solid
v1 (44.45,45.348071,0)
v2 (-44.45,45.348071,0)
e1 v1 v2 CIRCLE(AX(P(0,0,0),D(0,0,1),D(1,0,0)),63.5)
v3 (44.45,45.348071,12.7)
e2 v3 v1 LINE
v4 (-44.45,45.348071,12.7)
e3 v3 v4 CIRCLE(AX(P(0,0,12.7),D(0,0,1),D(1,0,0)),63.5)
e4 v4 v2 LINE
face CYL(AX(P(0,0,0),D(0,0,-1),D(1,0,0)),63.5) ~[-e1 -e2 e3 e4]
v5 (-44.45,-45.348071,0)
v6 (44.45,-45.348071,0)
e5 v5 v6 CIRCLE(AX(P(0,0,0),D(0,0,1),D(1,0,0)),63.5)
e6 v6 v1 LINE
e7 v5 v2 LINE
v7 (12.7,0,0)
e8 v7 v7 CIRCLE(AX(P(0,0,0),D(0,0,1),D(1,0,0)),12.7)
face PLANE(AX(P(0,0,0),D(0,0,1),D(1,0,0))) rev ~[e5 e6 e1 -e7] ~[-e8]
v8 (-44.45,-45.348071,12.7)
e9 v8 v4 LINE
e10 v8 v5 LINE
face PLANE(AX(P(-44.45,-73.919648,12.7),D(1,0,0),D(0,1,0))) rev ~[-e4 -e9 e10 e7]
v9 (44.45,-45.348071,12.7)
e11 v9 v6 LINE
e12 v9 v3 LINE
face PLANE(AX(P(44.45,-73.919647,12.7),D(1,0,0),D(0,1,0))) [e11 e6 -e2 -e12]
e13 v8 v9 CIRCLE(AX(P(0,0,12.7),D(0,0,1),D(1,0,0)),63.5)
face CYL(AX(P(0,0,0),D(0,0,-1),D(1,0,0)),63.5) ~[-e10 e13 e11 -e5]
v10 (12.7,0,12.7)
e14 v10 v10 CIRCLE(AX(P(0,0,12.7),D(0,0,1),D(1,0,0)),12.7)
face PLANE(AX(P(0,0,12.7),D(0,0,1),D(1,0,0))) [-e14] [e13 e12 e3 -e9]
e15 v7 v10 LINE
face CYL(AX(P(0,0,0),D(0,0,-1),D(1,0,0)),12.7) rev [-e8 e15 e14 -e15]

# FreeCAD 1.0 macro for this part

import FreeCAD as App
import Part
import Sketcher
from FreeCAD import Vector
Q = App.Units.Quantity

doc = App.newDocument("Part")
body = doc.addObject("PartDesign::Body", "Body")

# Sketch on XY plane
sketch1 = doc.addObject("Sketcher::SketchObject", "Sketch")
body.addObject(sketch1)
sketch1.AttachmentSupport = (doc.XY_Plane, [""])
sketch1.MapMode = "FlatFace"
sketch1.addGeometry(Part.Circle(Vector(0, 0, 0), Vector(0, 0, 1), 64), False)
sketch1.addGeometry(Part.Circle(Vector(0, 0, 0), Vector(0, 0, 1), 13), False)
sketch1.addConstraint(Sketcher.Constraint("Coincident", 0, 3, -1, 1))
sketch1.addConstraint(Sketcher.Constraint("Coincident", 1, 3, -1, 1))
sketch1.addConstraint(Sketcher.Constraint("Diameter", 0, Q("5 in")))
sketch1.addConstraint(Sketcher.Constraint("Diameter", 1, Q("1 in")))
pad1 = doc.addObject("PartDesign::Pad", "Pad")
body.addObject(pad1)
pad1.Profile = sketch1
pad1.Length = Q("0.5 in")

# Sketch on XY plane
sketch2 = doc.addObject("Sketcher::SketchObject", "Sketch001")
body.addObject(sketch2)
sketch2.AttachmentSupport = (doc.XY_Plane, [""])
sketch2.MapMode = "FlatFace"
sketch2.AttachmentOffset = App.Placement(Vector(0, 0, 0.5 * 25.4), App.Rotation())
sketch2.addGeometry(Part.LineSegment(Vector(-98, 67, 0), Vector(-98, -74, 0)), False)
sketch2.addGeometry(Part.LineSegment(Vector(-98, -74, 0), Vector(-44, -74, 0)), False)
sketch2.addGeometry(Part.LineSegment(Vector(-44, -74, 0), Vector(-44, 67, 0)), False)
sketch2.addGeometry(Part.LineSegment(Vector(-44, 67, 0), Vector(-98, 67, 0)), False)
sketch2.addGeometry(Part.LineSegment(Vector(44, 67, 0), Vector(44, -74, 0)), False)
sketch2.addGeometry(Part.LineSegment(Vector(44, -74, 0), Vector(111, -74, 0)), False)
sketch2.addGeometry(Part.LineSegment(Vector(111, -74, 0), Vector(111, 67, 0)), False)
sketch2.addGeometry(Part.LineSegment(Vector(111, 67, 0), Vector(44, 67, 0)), False)
sketch2.addConstraint(Sketcher.Constraint("Coincident", 0, 2, 1, 1))
sketch2.addConstraint(Sketcher.Constraint("Coincident", 1, 2, 2, 1))
sketch2.addConstraint(Sketcher.Constraint("Coincident", 2, 2, 3, 1))
sketch2.addConstraint(Sketcher.Constraint("Coincident", 3, 2, 0, 1))
sketch2.addConstraint(Sketcher.Constraint("Coincident", 4, 2, 5, 1))
sketch2.addConstraint(Sketcher.Constraint("Coincident", 5, 2, 6, 1))
sketch2.addConstraint(Sketcher.Constraint("Coincident", 6, 2, 7, 1))
sketch2.addConstraint(Sketcher.Constraint("Coincident", 7, 2, 4, 1))
sketch2.addConstraint(Sketcher.Constraint("Vertical", 0))
sketch2.addConstraint(Sketcher.Constraint("Horizontal", 1))
sketch2.addConstraint(Sketcher.Constraint("Vertical", 2))
sketch2.addConstraint(Sketcher.Constraint("Horizontal", 3))
sketch2.addConstraint(Sketcher.Constraint("Vertical", 4))
sketch2.addConstraint(Sketcher.Constraint("Horizontal", 5))
sketch2.addConstraint(Sketcher.Constraint("Vertical", 6))
sketch2.addConstraint(Sketcher.Constraint("Horizontal", 7))
sketch2.addConstraint(Sketcher.Constraint("Symmetric", 1, 2, 4, 2, -2))
sketch2.addConstraint(Sketcher.Constraint("DistanceX", 1, 2, 4, 2, Q("3.5 in")))
sketch2.addConstraint(Sketcher.Constraint("DistanceX", 5, 1, 5, 2, Q("2.6250001 in")))
sketch2.addConstraint(Sketcher.Constraint("DistanceY", 0, 2, 0, 1, 140.439012))
sketch2.addConstraint(Sketcher.Constraint("DistanceX", 1, 1, 1, 2, 54.029742))
sketch2.addConstraint(Sketcher.Constraint("DistanceY", 4, 2, 4, 1, 141.013797))
sketch2.addConstraint(Sketcher.Constraint("DistanceY", -1, 1, 6, 2, 67.09415))
pocket1 = doc.addObject("PartDesign::Pocket", "Pocket")
body.addObject(pocket1)
pocket1.Profile = sketch2
pocket1.Length = Q("1 in")

doc.recompute()
